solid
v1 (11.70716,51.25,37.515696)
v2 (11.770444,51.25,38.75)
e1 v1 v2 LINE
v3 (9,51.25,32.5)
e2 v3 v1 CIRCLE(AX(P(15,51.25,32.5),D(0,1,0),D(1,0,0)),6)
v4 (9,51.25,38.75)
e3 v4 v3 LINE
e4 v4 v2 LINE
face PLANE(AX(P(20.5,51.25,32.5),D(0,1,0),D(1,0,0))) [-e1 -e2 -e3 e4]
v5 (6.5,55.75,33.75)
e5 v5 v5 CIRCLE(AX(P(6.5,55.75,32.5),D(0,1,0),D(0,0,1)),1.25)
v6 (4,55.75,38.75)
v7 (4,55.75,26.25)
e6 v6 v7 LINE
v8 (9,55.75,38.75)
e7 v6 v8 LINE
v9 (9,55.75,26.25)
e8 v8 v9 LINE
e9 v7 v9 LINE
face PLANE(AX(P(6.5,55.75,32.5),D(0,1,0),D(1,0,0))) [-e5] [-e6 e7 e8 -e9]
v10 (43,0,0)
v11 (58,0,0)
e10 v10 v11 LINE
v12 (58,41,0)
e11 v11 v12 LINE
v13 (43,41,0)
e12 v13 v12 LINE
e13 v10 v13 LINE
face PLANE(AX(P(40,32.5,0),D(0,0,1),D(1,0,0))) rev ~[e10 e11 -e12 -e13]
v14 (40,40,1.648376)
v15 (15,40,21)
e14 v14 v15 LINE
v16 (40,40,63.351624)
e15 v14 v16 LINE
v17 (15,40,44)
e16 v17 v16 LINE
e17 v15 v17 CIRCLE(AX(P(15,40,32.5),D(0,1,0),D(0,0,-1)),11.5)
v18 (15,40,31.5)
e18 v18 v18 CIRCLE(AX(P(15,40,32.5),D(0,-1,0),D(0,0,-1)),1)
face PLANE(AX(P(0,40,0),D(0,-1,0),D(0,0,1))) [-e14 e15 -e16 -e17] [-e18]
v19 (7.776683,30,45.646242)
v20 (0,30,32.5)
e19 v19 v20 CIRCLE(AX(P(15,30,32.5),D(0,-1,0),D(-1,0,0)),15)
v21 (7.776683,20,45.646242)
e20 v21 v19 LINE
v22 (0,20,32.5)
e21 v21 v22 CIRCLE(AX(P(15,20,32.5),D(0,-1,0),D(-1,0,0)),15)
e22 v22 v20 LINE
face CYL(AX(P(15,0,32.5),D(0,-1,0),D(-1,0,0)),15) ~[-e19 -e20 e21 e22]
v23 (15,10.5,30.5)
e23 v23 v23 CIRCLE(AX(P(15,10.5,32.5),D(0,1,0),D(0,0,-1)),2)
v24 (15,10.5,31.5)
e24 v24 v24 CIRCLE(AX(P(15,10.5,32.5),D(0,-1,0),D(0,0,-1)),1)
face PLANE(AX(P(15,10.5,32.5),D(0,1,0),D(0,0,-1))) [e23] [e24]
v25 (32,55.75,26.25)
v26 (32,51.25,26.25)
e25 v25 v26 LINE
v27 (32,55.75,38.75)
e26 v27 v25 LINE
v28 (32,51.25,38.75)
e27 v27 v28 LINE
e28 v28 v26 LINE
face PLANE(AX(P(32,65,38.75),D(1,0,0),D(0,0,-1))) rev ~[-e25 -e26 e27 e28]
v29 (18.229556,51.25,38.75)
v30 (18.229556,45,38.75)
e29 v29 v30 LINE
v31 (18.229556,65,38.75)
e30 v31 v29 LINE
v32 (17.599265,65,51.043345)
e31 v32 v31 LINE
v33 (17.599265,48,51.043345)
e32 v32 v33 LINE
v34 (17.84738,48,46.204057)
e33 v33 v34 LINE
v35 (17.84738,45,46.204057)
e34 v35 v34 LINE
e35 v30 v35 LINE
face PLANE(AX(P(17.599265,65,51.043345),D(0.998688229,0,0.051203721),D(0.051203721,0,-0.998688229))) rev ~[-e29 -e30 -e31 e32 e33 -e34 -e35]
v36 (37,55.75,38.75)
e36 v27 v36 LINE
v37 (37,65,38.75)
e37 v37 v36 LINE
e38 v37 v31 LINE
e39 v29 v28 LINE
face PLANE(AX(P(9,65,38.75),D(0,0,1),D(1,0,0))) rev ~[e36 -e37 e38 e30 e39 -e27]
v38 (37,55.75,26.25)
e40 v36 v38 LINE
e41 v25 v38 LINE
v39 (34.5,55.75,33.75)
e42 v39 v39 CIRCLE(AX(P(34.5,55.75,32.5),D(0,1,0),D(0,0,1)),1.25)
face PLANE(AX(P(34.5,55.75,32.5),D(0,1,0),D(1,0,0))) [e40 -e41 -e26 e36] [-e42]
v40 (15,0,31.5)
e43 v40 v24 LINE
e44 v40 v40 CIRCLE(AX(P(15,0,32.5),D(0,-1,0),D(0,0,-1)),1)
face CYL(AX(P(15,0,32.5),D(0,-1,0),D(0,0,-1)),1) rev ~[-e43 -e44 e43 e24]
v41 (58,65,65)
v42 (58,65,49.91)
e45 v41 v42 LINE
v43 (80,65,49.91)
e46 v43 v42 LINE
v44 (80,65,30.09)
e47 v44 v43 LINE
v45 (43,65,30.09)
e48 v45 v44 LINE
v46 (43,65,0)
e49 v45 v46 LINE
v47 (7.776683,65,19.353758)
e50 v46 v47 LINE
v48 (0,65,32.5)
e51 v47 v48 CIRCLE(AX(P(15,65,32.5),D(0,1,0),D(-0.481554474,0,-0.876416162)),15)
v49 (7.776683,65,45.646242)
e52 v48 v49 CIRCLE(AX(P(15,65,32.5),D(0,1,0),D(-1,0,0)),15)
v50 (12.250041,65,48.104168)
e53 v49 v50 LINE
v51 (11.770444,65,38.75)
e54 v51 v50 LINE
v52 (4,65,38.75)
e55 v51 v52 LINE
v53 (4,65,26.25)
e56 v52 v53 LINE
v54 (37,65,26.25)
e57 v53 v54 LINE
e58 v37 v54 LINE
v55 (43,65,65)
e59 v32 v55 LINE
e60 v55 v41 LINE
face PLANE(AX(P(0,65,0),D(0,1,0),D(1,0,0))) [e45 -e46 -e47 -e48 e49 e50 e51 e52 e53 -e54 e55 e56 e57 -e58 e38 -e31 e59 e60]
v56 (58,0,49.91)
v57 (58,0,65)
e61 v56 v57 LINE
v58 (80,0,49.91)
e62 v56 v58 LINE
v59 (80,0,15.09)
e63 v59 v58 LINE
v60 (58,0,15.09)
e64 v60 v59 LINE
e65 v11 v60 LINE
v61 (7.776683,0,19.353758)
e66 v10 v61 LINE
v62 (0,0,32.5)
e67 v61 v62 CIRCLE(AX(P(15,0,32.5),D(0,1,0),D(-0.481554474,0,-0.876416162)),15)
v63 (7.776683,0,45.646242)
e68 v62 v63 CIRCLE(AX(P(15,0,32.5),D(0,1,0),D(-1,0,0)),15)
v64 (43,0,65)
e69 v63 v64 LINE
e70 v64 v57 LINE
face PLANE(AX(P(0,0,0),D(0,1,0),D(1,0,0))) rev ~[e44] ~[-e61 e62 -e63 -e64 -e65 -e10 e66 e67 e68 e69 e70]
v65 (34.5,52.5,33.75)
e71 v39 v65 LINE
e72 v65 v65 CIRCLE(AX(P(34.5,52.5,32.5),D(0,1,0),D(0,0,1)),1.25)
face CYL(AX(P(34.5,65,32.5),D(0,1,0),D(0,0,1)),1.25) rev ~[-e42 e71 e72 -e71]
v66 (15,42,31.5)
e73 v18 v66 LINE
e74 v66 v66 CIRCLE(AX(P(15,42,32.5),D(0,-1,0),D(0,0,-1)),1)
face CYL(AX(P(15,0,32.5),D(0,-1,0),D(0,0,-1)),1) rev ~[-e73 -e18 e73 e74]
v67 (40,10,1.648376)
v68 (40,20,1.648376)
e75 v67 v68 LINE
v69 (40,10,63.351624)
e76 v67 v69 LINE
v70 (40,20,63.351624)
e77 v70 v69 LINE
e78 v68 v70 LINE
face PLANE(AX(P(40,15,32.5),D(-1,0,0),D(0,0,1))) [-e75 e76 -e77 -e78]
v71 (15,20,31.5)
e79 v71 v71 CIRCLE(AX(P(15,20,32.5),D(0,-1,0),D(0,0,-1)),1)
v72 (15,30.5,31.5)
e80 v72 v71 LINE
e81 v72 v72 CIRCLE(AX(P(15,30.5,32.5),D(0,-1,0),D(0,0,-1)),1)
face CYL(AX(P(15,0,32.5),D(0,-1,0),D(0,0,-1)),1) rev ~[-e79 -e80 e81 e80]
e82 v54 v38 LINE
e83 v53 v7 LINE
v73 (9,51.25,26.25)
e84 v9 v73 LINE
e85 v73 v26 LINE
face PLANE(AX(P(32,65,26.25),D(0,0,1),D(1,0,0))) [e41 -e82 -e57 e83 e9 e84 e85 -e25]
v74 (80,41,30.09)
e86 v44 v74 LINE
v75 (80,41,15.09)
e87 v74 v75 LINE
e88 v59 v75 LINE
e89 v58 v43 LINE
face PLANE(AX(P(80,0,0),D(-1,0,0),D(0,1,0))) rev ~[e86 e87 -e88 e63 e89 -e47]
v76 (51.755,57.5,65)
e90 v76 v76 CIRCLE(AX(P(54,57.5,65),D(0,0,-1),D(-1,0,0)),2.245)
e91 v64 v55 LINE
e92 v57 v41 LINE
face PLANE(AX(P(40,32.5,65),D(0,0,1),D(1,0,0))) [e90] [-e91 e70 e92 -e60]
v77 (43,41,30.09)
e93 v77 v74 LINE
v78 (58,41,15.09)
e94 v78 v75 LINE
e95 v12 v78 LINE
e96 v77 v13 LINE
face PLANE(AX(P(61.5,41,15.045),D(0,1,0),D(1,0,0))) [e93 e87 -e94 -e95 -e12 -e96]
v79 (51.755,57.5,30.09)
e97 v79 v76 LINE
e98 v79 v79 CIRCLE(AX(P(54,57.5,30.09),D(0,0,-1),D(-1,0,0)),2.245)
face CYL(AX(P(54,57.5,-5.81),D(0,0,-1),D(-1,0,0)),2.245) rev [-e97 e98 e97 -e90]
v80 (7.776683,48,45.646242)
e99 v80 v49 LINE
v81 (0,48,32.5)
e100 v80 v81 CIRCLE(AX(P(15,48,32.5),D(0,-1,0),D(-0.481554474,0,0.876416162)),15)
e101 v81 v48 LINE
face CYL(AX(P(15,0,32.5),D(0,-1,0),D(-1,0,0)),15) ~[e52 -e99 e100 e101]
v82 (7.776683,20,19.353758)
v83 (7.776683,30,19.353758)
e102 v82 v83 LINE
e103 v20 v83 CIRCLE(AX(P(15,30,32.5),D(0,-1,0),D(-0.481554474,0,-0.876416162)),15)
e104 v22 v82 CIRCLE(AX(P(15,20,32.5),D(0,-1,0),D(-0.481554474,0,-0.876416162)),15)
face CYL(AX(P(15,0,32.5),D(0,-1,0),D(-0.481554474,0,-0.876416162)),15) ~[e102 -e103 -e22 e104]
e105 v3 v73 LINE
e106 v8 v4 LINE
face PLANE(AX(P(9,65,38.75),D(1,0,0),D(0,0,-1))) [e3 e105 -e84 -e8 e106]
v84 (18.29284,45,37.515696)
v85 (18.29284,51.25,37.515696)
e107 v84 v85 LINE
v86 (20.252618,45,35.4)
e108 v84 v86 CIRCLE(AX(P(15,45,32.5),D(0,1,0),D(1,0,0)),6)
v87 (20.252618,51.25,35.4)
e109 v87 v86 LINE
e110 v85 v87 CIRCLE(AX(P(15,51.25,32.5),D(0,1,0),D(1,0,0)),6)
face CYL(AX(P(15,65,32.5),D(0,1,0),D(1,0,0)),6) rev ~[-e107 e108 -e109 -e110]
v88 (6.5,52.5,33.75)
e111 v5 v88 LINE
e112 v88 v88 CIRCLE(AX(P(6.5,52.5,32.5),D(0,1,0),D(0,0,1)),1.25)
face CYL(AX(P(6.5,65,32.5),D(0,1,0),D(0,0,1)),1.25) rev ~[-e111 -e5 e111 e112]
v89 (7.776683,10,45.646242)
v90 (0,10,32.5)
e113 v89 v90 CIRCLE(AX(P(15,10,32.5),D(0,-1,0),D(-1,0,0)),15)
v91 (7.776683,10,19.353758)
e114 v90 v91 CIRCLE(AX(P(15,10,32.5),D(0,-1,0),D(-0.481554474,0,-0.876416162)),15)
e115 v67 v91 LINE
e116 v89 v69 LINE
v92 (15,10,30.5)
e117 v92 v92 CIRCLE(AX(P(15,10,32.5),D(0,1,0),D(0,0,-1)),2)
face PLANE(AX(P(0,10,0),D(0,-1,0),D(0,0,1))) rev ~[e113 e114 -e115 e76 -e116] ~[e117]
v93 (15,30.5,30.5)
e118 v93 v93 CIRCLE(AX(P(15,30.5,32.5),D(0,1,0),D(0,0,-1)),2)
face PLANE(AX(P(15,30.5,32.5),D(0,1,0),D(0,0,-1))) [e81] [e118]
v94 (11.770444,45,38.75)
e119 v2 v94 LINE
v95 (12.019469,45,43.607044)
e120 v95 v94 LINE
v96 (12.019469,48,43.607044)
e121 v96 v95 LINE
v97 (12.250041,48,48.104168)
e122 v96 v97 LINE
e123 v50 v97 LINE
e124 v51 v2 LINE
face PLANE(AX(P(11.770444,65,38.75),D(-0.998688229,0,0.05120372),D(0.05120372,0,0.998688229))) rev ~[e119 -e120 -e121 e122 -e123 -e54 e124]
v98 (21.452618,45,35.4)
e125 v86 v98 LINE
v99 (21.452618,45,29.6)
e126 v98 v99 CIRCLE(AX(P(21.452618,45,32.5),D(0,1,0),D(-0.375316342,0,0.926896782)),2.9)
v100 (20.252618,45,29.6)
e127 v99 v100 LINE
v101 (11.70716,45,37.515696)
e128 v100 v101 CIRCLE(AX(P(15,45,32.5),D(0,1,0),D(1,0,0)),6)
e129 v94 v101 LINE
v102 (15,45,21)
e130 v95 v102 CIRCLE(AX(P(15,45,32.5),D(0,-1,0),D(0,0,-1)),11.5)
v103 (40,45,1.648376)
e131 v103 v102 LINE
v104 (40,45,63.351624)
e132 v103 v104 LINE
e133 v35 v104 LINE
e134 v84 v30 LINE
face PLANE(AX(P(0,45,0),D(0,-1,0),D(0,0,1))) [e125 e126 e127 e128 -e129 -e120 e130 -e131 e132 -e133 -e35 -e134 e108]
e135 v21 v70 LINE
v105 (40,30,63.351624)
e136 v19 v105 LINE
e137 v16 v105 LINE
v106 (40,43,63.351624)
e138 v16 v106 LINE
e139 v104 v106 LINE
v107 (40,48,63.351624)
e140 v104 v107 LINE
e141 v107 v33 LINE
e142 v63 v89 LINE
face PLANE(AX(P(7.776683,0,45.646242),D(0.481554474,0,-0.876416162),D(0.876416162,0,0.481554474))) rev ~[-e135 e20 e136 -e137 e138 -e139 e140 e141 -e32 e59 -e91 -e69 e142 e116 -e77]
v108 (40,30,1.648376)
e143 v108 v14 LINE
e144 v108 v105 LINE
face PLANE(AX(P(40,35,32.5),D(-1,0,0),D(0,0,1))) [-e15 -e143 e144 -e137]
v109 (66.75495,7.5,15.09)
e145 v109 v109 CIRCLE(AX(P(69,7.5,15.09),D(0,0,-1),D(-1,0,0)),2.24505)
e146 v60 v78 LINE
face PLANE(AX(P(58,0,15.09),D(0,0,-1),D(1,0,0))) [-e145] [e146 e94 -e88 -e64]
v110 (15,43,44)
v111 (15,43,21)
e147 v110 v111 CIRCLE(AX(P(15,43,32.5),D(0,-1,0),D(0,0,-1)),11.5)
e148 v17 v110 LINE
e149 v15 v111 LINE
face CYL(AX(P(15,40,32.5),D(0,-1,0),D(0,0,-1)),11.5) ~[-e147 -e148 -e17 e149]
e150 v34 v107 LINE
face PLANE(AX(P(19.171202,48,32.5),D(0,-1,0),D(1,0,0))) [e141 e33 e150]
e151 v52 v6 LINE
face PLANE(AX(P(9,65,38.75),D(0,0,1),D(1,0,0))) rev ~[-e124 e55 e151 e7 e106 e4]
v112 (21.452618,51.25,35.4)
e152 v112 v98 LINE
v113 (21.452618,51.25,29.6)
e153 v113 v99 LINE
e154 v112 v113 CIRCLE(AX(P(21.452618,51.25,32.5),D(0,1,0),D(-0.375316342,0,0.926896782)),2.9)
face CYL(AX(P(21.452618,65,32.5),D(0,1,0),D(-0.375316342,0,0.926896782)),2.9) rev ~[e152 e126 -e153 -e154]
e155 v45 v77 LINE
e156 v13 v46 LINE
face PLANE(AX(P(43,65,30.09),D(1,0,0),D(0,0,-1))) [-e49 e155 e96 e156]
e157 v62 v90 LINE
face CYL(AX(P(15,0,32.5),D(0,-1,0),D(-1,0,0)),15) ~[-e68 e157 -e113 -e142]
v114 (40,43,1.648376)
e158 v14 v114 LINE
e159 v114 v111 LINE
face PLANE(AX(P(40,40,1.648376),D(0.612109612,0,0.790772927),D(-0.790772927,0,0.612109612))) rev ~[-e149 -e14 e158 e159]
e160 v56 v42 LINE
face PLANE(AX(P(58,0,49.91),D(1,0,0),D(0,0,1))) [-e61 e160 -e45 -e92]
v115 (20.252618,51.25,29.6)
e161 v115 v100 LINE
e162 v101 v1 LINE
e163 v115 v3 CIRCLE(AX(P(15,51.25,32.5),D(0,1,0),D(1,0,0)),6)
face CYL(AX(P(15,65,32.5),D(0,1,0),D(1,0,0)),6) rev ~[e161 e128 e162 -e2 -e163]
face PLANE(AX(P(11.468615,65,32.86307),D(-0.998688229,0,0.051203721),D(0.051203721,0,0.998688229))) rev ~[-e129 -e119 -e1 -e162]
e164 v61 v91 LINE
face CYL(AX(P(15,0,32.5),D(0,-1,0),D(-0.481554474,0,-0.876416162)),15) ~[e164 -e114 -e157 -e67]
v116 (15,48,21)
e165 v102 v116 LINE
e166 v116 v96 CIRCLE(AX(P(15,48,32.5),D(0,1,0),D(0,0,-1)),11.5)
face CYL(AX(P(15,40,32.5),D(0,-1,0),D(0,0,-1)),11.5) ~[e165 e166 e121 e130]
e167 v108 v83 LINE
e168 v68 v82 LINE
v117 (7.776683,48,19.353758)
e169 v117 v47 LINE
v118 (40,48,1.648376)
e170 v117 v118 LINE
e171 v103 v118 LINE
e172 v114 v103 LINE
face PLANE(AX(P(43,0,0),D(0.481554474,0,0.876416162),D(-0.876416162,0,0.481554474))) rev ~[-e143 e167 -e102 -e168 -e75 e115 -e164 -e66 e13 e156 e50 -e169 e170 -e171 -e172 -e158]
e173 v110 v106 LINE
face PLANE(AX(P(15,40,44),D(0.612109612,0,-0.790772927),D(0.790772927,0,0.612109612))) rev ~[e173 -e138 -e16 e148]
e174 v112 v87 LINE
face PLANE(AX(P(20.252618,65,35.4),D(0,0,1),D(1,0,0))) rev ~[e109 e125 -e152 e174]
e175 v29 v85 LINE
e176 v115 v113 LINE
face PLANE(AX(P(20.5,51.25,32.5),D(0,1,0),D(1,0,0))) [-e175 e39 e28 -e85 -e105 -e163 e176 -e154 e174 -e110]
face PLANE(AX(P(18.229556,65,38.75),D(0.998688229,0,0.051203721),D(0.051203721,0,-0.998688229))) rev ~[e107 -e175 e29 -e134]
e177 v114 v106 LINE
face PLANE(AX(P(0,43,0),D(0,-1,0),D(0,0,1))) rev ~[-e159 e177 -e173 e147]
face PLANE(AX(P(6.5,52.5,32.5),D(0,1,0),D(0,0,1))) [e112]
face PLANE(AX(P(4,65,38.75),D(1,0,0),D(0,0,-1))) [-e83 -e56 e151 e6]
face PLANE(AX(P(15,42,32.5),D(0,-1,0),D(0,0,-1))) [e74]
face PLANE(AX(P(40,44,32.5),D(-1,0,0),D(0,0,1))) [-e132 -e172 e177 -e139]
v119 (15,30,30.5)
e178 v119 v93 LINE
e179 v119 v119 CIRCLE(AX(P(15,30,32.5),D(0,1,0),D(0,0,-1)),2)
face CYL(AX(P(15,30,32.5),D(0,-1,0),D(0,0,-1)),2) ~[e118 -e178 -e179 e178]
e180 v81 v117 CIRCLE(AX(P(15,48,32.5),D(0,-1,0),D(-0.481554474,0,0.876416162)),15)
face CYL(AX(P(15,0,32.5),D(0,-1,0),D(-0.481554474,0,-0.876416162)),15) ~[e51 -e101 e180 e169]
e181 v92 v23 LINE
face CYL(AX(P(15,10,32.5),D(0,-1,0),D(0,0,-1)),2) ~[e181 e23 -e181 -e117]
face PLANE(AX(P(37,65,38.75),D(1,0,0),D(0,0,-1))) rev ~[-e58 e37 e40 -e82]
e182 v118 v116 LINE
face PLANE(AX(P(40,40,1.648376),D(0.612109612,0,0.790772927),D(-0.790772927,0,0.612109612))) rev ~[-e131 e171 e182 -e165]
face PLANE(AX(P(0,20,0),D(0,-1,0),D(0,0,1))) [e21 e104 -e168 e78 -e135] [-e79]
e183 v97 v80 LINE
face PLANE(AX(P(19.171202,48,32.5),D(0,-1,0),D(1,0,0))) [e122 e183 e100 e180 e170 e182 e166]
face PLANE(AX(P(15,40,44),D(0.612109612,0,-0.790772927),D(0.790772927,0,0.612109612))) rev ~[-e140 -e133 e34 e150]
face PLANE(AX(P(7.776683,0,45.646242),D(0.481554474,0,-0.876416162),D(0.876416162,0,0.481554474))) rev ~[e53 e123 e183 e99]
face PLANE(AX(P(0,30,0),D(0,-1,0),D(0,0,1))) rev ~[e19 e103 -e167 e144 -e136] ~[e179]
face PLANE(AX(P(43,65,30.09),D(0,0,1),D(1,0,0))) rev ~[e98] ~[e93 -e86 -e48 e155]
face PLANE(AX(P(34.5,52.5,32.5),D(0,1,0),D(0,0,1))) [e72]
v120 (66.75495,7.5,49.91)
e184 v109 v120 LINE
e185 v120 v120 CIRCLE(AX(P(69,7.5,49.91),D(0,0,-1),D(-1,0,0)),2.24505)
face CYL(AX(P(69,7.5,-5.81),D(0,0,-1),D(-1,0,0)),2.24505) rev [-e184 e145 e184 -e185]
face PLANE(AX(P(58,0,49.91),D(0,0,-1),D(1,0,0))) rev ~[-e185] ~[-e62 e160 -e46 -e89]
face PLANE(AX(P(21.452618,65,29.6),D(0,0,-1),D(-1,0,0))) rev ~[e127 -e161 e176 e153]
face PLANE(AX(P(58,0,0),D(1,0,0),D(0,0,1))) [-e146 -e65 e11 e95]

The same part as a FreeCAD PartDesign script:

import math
import FreeCAD as App
import Part
import Sketcher

V = App.Vector

doc = App.newDocument("Part")
params = doc.addObject("Spreadsheet::Sheet", "Params")
for row, (alias, value) in enumerate([
    ("sketch1_width", "80 mm"),
    ("sketch1_height", "65 mm"),
    ("pad1_length", "65 mm"),
    ("sketch2_width", "22 mm"),
    ("sketch2_height", "15.09 mm"),
    ("pocket1_length", "65.72 mm"),
    ("sketch3_diameter", "4.49 mm"),
    ("sketch4_width", "10 mm"),
    ("sketch4_width2", "2 mm"),
    ("sketch4_height", "65 mm"),
    ("pocket3_length", "40 mm"),
    ("sketch5_radius", "15 mm"),
    ("sketch5_width", "43 mm"),
    ("sketch5_height", "32.5 mm"),
    ("pocket4_length", "65 mm"),
    ("sketch6_diameter", "2 mm"),
    ("pocket5_length", "42 mm"),
    ("sketch7_radius", "6 mm"),
    ("sketch7_radius2", "2.9 mm"),
    ("sketch7_width", "1.2 mm"),
    ("pocket6_length", "20 mm"),
    ("sketch8_width", "23 mm"),
    ("sketch8_height", "12.5 mm"),
    ("pocket7_length", "13.75 mm"),
    ("sketch9_width", "5 mm"),
    ("sketch9_height", "12.5 mm"),
    ("pocket8_length", "9.25 mm"),
    ("sketch10_diameter", "2.5 mm"),
    ("pocket9_length", "12.5 mm"),
    ("sketch11_radius", "3.55 mm"),
    ("pocket10_length", "21.5 mm"),
    ("sketch12_radius", "15 mm"),
    ("sketch12_radius2", "11.5 mm"),
    ("pocket11_length", "8 mm"),
    ("sketch13_diameter", "4 mm"),
    ("pad2_length", "0.5 mm"),
    ("sketch14_diameter", "4 mm"),
    ("pad3_length", "0.5 mm"),
    ("sketch15_diameter", "2 mm"),
    ("pocket12_length", "30.5 mm"),
    ("sketch16_width", "37 mm"),
    ("sketch16_height", "30.09 mm"),
    ("pocket13_length", "24 mm"),
], start=1):
    params.set(f"A{row}", alias)
    params.set(f"B{row}", "=" + value)
    params.setAlias(f"B{row}", alias)

body = doc.addObject("PartDesign::Body", "Body")

sketch1 = body.newObject("Sketcher::SketchObject", "Sketch")
sketch1.AttachmentSupport = (doc.getObject("XY_Plane"), [""])
sketch1.MapMode = "FlatFace"
sketch1.addGeometry([
    Part.LineSegment(V(0, 65, 0), V(0, 0, 0)),
    Part.LineSegment(V(0, 0, 0), V(80, 0, 0)),
    Part.LineSegment(V(80, 0, 0), V(80, 65, 0)),
    Part.LineSegment(V(80, 65, 0), V(0, 65, 0)),
], False)
sketch1.addConstraint([
    Sketcher.Constraint("Coincident", 0, 2, 1, 1),
    Sketcher.Constraint("Coincident", 1, 2, 2, 1),
    Sketcher.Constraint("Coincident", 2, 2, 3, 1),
    Sketcher.Constraint("Coincident", 3, 2, 0, 1),
    Sketcher.Constraint("Vertical", 0),
    Sketcher.Constraint("Horizontal", 1),
    Sketcher.Constraint("Vertical", 2),
    Sketcher.Constraint("Horizontal", 3),
    Sketcher.Constraint("Coincident", 0, 2, -1, 1),
    Sketcher.Constraint("DistanceX", 1, 1, 1, 2, 80.0),
    Sketcher.Constraint("DistanceY", 0, 2, 0, 1, 65.0),
])
sketch1.setExpression("Constraints[9]", "Params.sketch1_width")
sketch1.setExpression("Constraints[10]", "Params.sketch1_height")
pad1 = body.newObject("PartDesign::Pad", "Pad")
pad1.Profile = sketch1
pad1.setExpression("Length", "Params.pad1_length")

sketch2 = body.newObject("Sketcher::SketchObject", "Sketch001")
sketch2.AttachmentSupport = (doc.getObject("XZ_Plane"), [""])
sketch2.MapMode = "FlatFace"
sketch2.addGeometry([
    Part.LineSegment(V(58, 65, 0), V(58, 50, 0)),
    Part.LineSegment(V(58, 50, 0), V(80, 50, 0)),
    Part.LineSegment(V(80, 50, 0), V(80, 65, 0)),
    Part.LineSegment(V(80, 65, 0), V(58, 65, 0)),
    Part.LineSegment(V(58, 15, 0), V(58, 0, 0)),
    Part.LineSegment(V(58, 0, 0), V(80, 0, 0)),
    Part.LineSegment(V(80, 0, 0), V(80, 15, 0)),
    Part.LineSegment(V(80, 15, 0), V(58, 15, 0)),
], False)
sketch2.addConstraint([
    Sketcher.Constraint("Coincident", 0, 2, 1, 1),
    Sketcher.Constraint("Coincident", 1, 2, 2, 1),
    Sketcher.Constraint("Coincident", 2, 2, 3, 1),
    Sketcher.Constraint("Coincident", 3, 2, 0, 1),
    Sketcher.Constraint("Coincident", 4, 2, 5, 1),
    Sketcher.Constraint("Coincident", 5, 2, 6, 1),
    Sketcher.Constraint("Coincident", 6, 2, 7, 1),
    Sketcher.Constraint("Coincident", 7, 2, 4, 1),
    Sketcher.Constraint("Vertical", 0),
    Sketcher.Constraint("Horizontal", 1),
    Sketcher.Constraint("Vertical", 2),
    Sketcher.Constraint("Horizontal", 3),
    Sketcher.Constraint("Vertical", 4),
    Sketcher.Constraint("Horizontal", 5),
    Sketcher.Constraint("Vertical", 6),
    Sketcher.Constraint("Horizontal", 7),
    Sketcher.Constraint("PointOnObject", 4, 2, -1),
    Sketcher.Constraint("Vertical", 3, 2, 4, 2),
    Sketcher.Constraint("Vertical", 2, 2, 5, 2),
    Sketcher.Constraint("Equal", 2, 4),
    Sketcher.Constraint("DistanceX", 1, 1, 1, 2, 22.0),
    Sketcher.Constraint("DistanceX", -1, 1, 0, 2, 58.0),
    Sketcher.Constraint("DistanceY", -1, 1, 2, 2, 65.0),
    Sketcher.Constraint("DistanceY", 0, 2, 0, 1, 15.09),
])
sketch2.setExpression("Constraints[20]", "Params.sketch2_width")
sketch2.setExpression("Constraints[23]", "Params.sketch2_height")
pocket1 = body.newObject("PartDesign::Pocket", "Pocket")
pocket1.Profile = sketch2
pocket1.setExpression("Length", "Params.pocket1_length")

sketch3 = body.newObject("Sketcher::SketchObject", "Sketch002")
sketch3.AttachmentSupport = (doc.getObject("XY_Plane"), [""])
sketch3.MapMode = "FlatFace"
sketch3.AttachmentOffset = App.Placement(V(0, 0, 49.91), App.Rotation())
sketch3.addGeometry([
    Part.Circle(V(54, 57.5, 0), V(0, 0, 1), 2.2),
    Part.Circle(V(69, 7.5, 0), V(0, 0, 1), 2.2),
], False)
sketch3.addConstraint([
    Sketcher.Constraint("Diameter", 0, 4.49),
    Sketcher.Constraint("DistanceX", -1, 1, 0, 3, 54.0),
    Sketcher.Constraint("DistanceX", -1, 1, 1, 3, 69.0),
    Sketcher.Constraint("DistanceY", 1, 3, 0, 3, 50.0),
    Sketcher.Constraint("Diameter", 1, 4.4901),
    Sketcher.Constraint("DistanceY", -1, 1, 0, 3, 57.5),
])
sketch3.setExpression("Constraints[0]", "Params.sketch3_diameter")
pocket2 = body.newObject("PartDesign::Pocket", "Pocket001")
pocket2.Profile = sketch3
pocket2.Type = "ThroughAll"
pocket2.Midplane = True

sketch4 = body.newObject("Sketcher::SketchObject", "Sketch003")
sketch4.AttachmentSupport = (doc.getObject("YZ_Plane"), [""])
sketch4.MapMode = "FlatFace"
sketch4.addGeometry([
    Part.LineSegment(V(40, 0, 0), V(30, 0, 0)),
    Part.LineSegment(V(30, 0, 0), V(30, 65, 0)),
    Part.LineSegment(V(30, 65, 0), V(40, 65, 0)),
    Part.LineSegment(V(40, 65, 0), V(40, 0, 0)),
    Part.LineSegment(V(20, 0, 0), V(10, 0, 0)),
    Part.LineSegment(V(10, 0, 0), V(10, 65, 0)),
    Part.LineSegment(V(10, 65, 0), V(20, 65, 0)),
    Part.LineSegment(V(20, 65, 0), V(20, 0, 0)),
    Part.LineSegment(V(45, 0, 0), V(43, 0, 0)),
    Part.LineSegment(V(43, 0, 0), V(43, 65, 0)),
    Part.LineSegment(V(43, 65, 0), V(45, 65, 0)),
    Part.LineSegment(V(45, 65, 0), V(45, 0, 0)),
], False)
sketch4.addConstraint([
    Sketcher.Constraint("Coincident", 0, 2, 1, 1),
    Sketcher.Constraint("Coincident", 1, 2, 2, 1),
    Sketcher.Constraint("Coincident", 2, 2, 3, 1),
    Sketcher.Constraint("Coincident", 3, 2, 0, 1),
    Sketcher.Constraint("Coincident", 4, 2, 5, 1),
    Sketcher.Constraint("Coincident", 5, 2, 6, 1),
    Sketcher.Constraint("Coincident", 6, 2, 7, 1),
    Sketcher.Constraint("Coincident", 7, 2, 4, 1),
    Sketcher.Constraint("Coincident", 8, 2, 9, 1),
    Sketcher.Constraint("Coincident", 9, 2, 10, 1),
    Sketcher.Constraint("Coincident", 10, 2, 11, 1),
    Sketcher.Constraint("Coincident", 11, 2, 8, 1),
    Sketcher.Constraint("Horizontal", 0),
    Sketcher.Constraint("Vertical", 1),
    Sketcher.Constraint("Horizontal", 2),
    Sketcher.Constraint("Vertical", 3),
    Sketcher.Constraint("Horizontal", 4),
    Sketcher.Constraint("Vertical", 5),
    Sketcher.Constraint("Horizontal", 6),
    Sketcher.Constraint("Vertical", 7),
    Sketcher.Constraint("Horizontal", 8),
    Sketcher.Constraint("Vertical", 9),
    Sketcher.Constraint("Horizontal", 10),
    Sketcher.Constraint("Vertical", 11),
    Sketcher.Constraint("PointOnObject", 0, 2, -1),
    Sketcher.Constraint("PointOnObject", 4, 2, -1),
    Sketcher.Constraint("PointOnObject", 8, 2, -1),
    Sketcher.Constraint("Horizontal", 2, 2, 5, 2),
    Sketcher.Constraint("Horizontal", 6, 2, 9, 2),
    Sketcher.Constraint("Equal", 2, 4),
    Sketcher.Constraint("DistanceX", 0, 2, 0, 1, 10.0),
    Sketcher.Constraint("DistanceX", 8, 2, 8, 1, 2.0),
    Sketcher.Constraint("DistanceY", 1, 1, 1, 2, 65.0),
    Sketcher.Constraint("DistanceX", -1, 1, 0, 2, 30.0),
    Sketcher.Constraint("DistanceX", -1, 1, 4, 2, 10.0),
    Sketcher.Constraint("DistanceX", -1, 1, 8, 2, 43.0),
])
sketch4.setExpression("Constraints[30]", "Params.sketch4_width")
sketch4.setExpression("Constraints[31]", "Params.sketch4_width2")
sketch4.setExpression("Constraints[32]", "Params.sketch4_height")
pocket3 = body.newObject("PartDesign::Pocket", "Pocket002")
pocket3.Profile = sketch4
pocket3.setExpression("Length", "Params.pocket3_length")
pocket3.Reversed = True

sketch5 = body.newObject("Sketcher::SketchObject", "Sketch004")
sketch5.AttachmentSupport = (doc.getObject("XZ_Plane"), [""])
sketch5.MapMode = "FlatFace"
sketch5.addGeometry([
    Part.LineSegment(V(0, 0, 0), V(43, 0, 0)),
    Part.LineSegment(V(43, 0, 0), V(8, 19, 0)),
    Part.ArcOfCircle(Part.Circle(V(15, 32, 0), V(0, 0, 1), 15), math.radians(180), math.radians(241)),
    Part.LineSegment(V(0, 32, 0), V(0, 0, 0)),
    Part.LineSegment(V(0, 65, 0), V(0, 32, 0)),
    Part.ArcOfCircle(Part.Circle(V(15, 32, 0), V(0, 0, 1), 15), math.radians(119), math.radians(180)),
    Part.LineSegment(V(8, 46, 0), V(43, 65, 0)),
    Part.LineSegment(V(43, 65, 0), V(0, 65, 0)),
], False)
sketch5.addConstraint([
    Sketcher.Constraint("Coincident", 0, 2, 1, 1),
    Sketcher.Constraint("Tangent", 1, 2, 2, 2),
    Sketcher.Constraint("Tangent", 2, 1, 3, 1),
    Sketcher.Constraint("Coincident", 3, 2, 0, 1),
    Sketcher.Constraint("Tangent", 4, 2, 5, 2),
    Sketcher.Constraint("Tangent", 5, 1, 6, 1),
    Sketcher.Constraint("Coincident", 6, 2, 7, 1),
    Sketcher.Constraint("Coincident", 7, 2, 4, 1),
    Sketcher.Constraint("Horizontal", 0),
    Sketcher.Constraint("Vertical", 3),
    Sketcher.Constraint("Vertical", 4),
    Sketcher.Constraint("Horizontal", 7),
    Sketcher.Constraint("Coincident", 3, 2, -1, 1),
    Sketcher.Constraint("Coincident", 5, 3, 2, 3),
    Sketcher.Constraint("Equal", 2, 5),
    Sketcher.Constraint("Vertical", 1, 2, 5, 1),
    Sketcher.Constraint("Vertical", 0, 2, 6, 2),
    Sketcher.Constraint("Radius", 2, 15.0),
    Sketcher.Constraint("DistanceX", 0, 1, 0, 2, 43.0),
    Sketcher.Constraint("DistanceY", 3, 2, 3, 1, 32.5),
])
sketch5.setExpression("Constraints[17]", "Params.sketch5_radius")
sketch5.setExpression("Constraints[18]", "Params.sketch5_width")
sketch5.setExpression("Constraints[19]", "Params.sketch5_height")
pocket4 = body.newObject("PartDesign::Pocket", "Pocket003")
pocket4.Profile = sketch5
pocket4.setExpression("Length", "Params.pocket4_length")

sketch6 = body.newObject("Sketcher::SketchObject", "Sketch005")
sketch6.AttachmentSupport = (doc.getObject("XZ_Plane"), [""])
sketch6.MapMode = "FlatFace"
sketch6.addGeometry(Part.Circle(V(15, 32.5, 0), V(0, 0, 1), 1), False)
sketch6.addConstraint([
    Sketcher.Constraint("Diameter", 0, 2.0),
    Sketcher.Constraint("DistanceX", -1, 1, 0, 3, 15.0),
    Sketcher.Constraint("DistanceY", -1, 1, 0, 3, 32.5),
])
sketch6.setExpression("Constraints[0]", "Params.sketch6_diameter")
pocket5 = body.newObject("PartDesign::Pocket", "Pocket004")
pocket5.Profile = sketch6
pocket5.setExpression("Length", "Params.pocket5_length")

sketch7 = body.newObject("Sketcher::SketchObject", "Sketch006")
sketch7.AttachmentSupport = (doc.getObject("XZ_Plane"), [""])
sketch7.MapMode = "FlatFace"
sketch7.AttachmentOffset = App.Placement(V(0, 0, -65), App.Rotation())
sketch7.addGeometry([
    Part.ArcOfCircle(Part.Circle(V(15, 32.5, 0), V(0, 0, 1), 6), math.radians(29), math.radians(331)),
    Part.LineSegment(V(20.3, 35.4, 0), V(21.5, 35.4, 0)),
    Part.ArcOfCircle(Part.Circle(V(21.5, 32.5, 0), V(0, 0, 1), 2.9), math.radians(-90), math.radians(90)),
    Part.LineSegment(V(21.5, 29.6, 0), V(20.3, 29.6, 0)),
], False)
sketch7.addConstraint([
    Sketcher.Constraint("Coincident", 0, 1, 1, 1),
    Sketcher.Constraint("Tangent", 1, 2, 2, 2),
    Sketcher.Constraint("Tangent", 2, 1, 3, 1),
    Sketcher.Constraint("Coincident", 3, 2, 0, 2),
    Sketcher.Constraint("Horizontal", 1),
    Sketcher.Constraint("Horizontal", 3),
    Sketcher.Constraint("Horizontal", 0, 3, 2, 3),
    Sketcher.Constraint("Radius", 0, 6.0),
    Sketcher.Constraint("Radius", 2, 2.9),
    Sketcher.Constraint("DistanceX", 1, 1, 1, 2, 1.2),
    Sketcher.Constraint("DistanceX", -1, 1, 0, 3, 15.0),
    Sketcher.Constraint("DistanceY", -1, 1, 0, 3, 32.5),
])
sketch7.setExpression("Constraints[7]", "Params.sketch7_radius")
sketch7.setExpression("Constraints[8]", "Params.sketch7_radius2")
sketch7.setExpression("Constraints[9]", "Params.sketch7_width")
pocket6 = body.newObject("PartDesign::Pocket", "Pocket005")
pocket6.Profile = sketch7
pocket6.setExpression("Length", "Params.pocket6_length")
pocket6.Reversed = True

sketch8 = body.newObject("Sketcher::SketchObject", "Sketch007")
sketch8.AttachmentSupport = (doc.getObject("XZ_Plane"), [""])
sketch8.MapMode = "FlatFace"
sketch8.AttachmentOffset = App.Placement(V(0, 0, -65), App.Rotation())
sketch8.addGeometry([
    Part.LineSegment(V(9, 26, 0), V(9, 39, 0)),
    Part.LineSegment(V(9, 39, 0), V(32, 39, 0)),
    Part.LineSegment(V(32, 39, 0), V(32, 26, 0)),
    Part.LineSegment(V(32, 26, 0), V(9, 26, 0)),
], False)
sketch8.addConstraint([
    Sketcher.Constraint("Coincident", 0, 2, 1, 1),
    Sketcher.Constraint("Coincident", 1, 2, 2, 1),
    Sketcher.Constraint("Coincident", 2, 2, 3, 1),
    Sketcher.Constraint("Coincident", 3, 2, 0, 1),
    Sketcher.Constraint("Vertical", 0),
    Sketcher.Constraint("Horizontal", 1),
    Sketcher.Constraint("Vertical", 2),
    Sketcher.Constraint("Horizontal", 3),
    Sketcher.Constraint("DistanceX", 1, 1, 1, 2, 23.0),
    Sketcher.Constraint("DistanceY", 0, 1, 0, 2, 12.5),
    Sketcher.Constraint("DistanceX", -1, 1, 0, 2, 9.0),
    Sketcher.Constraint("DistanceY", -1, 1, 0, 2, 38.75),
])
sketch8.setExpression("Constraints[8]", "Params.sketch8_width")
sketch8.setExpression("Constraints[9]", "Params.sketch8_height")
pocket7 = body.newObject("PartDesign::Pocket", "Pocket006")
pocket7.Profile = sketch8
pocket7.setExpression("Length", "Params.pocket7_length")
pocket7.Reversed = True

sketch9 = body.newObject("Sketcher::SketchObject", "Sketch008")
sketch9.AttachmentSupport = (doc.getObject("XZ_Plane"), [""])
sketch9.MapMode = "FlatFace"
sketch9.AttachmentOffset = App.Placement(V(0, 0, -65), App.Rotation())
sketch9.addGeometry([
    Part.LineSegment(V(4, 26, 0), V(4, 39, 0)),
    Part.LineSegment(V(4, 39, 0), V(9, 39, 0)),
    Part.LineSegment(V(9, 39, 0), V(9, 26, 0)),
    Part.LineSegment(V(9, 26, 0), V(4, 26, 0)),
    Part.LineSegment(V(32, 26, 0), V(32, 39, 0)),
    Part.LineSegment(V(32, 39, 0), V(37, 39, 0)),
    Part.LineSegment(V(37, 39, 0), V(37, 26, 0)),
    Part.LineSegment(V(37, 26, 0), V(32, 26, 0)),
], False)
sketch9.addConstraint([
    Sketcher.Constraint("Coincident", 0, 2, 1, 1),
    Sketcher.Constraint("Coincident", 1, 2, 2, 1),
    Sketcher.Constraint("Coincident", 2, 2, 3, 1),
    Sketcher.Constraint("Coincident", 3, 2, 0, 1),
    Sketcher.Constraint("Coincident", 4, 2, 5, 1),
    Sketcher.Constraint("Coincident", 5, 2, 6, 1),
    Sketcher.Constraint("Coincident", 6, 2, 7, 1),
    Sketcher.Constraint("Coincident", 7, 2, 4, 1),
    Sketcher.Constraint("Vertical", 0),
    Sketcher.Constraint("Horizontal", 1),
    Sketcher.Constraint("Vertical", 2),
    Sketcher.Constraint("Horizontal", 3),
    Sketcher.Constraint("Vertical", 4),
    Sketcher.Constraint("Horizontal", 5),
    Sketcher.Constraint("Vertical", 6),
    Sketcher.Constraint("Horizontal", 7),
    Sketcher.Constraint("Horizontal", 1, 2, 4, 2),
    Sketcher.Constraint("Horizontal", 3, 2, 6, 2),
    Sketcher.Constraint("Equal", 3, 5),
    Sketcher.Constraint("DistanceX", 1, 1, 1, 2, 5.0),
    Sketcher.Constraint("DistanceY", 0, 1, 0, 2, 12.5),
    Sketcher.Constraint("DistanceX", -1, 1, 0, 2, 4.0),
    Sketcher.Constraint("DistanceX", -1, 1, 4, 2, 32.0),
    Sketcher.Constraint("DistanceY", -1, 1, 0, 2, 38.75),
])
sketch9.setExpression("Constraints[19]", "Params.sketch9_width")
sketch9.setExpression("Constraints[20]", "Params.sketch9_height")
pocket8 = body.newObject("PartDesign::Pocket", "Pocket007")
pocket8.Profile = sketch9
pocket8.setExpression("Length", "Params.pocket8_length")
pocket8.Reversed = True

sketch10 = body.newObject("Sketcher::SketchObject", "Sketch009")
sketch10.AttachmentSupport = (doc.getObject("XZ_Plane"), [""])
sketch10.MapMode = "FlatFace"
sketch10.AttachmentOffset = App.Placement(V(0, 0, -65), App.Rotation())
sketch10.addGeometry([
    Part.Circle(V(6.5, 32.5, 0), V(0, 0, 1), 1.2),
    Part.Circle(V(34.5, 32.5, 0), V(0, 0, 1), 1.2),
], False)
sketch10.addConstraint([
    Sketcher.Constraint("Equal", 0, 1),
    Sketcher.Constraint("Horizontal", 0, 3, 1, 3),
    Sketcher.Constraint("Diameter", 0, 2.5),
    Sketcher.Constraint("DistanceX", 0, 3, 1, 3, 28.0),
    Sketcher.Constraint("DistanceX", -1, 1, 0, 3, 6.5),
    Sketcher.Constraint("DistanceY", -1, 1, 0, 3, 32.5),
])
sketch10.setExpression("Constraints[2]", "Params.sketch10_diameter")
pocket9 = body.newObject("PartDesign::Pocket", "Pocket008")
pocket9.Profile = sketch10
pocket9.setExpression("Length", "Params.pocket9_length")
pocket9.Reversed = True

sketch11 = body.newObject("Sketcher::SketchObject", "Sketch010")
sketch11.AttachmentSupport = (doc.getObject("XZ_Plane"), [""])
sketch11.MapMode = "FlatFace"
sketch11.AttachmentOffset = App.Placement(V(0, 0, -65), App.Rotation())
sketch11.addGeometry([
    Part.LineSegment(V(11.47, 32.86, 0), V(11.77, 38.75, 0)),
    Part.LineSegment(V(11.77, 38.75, 0), V(12.25, 48.1, 0)),
    Part.LineSegment(V(12.25, 48.1, 0), V(17.6, 51.04, 0)),
    Part.LineSegment(V(17.6, 51.04, 0), V(18.23, 38.75, 0)),
    Part.LineSegment(V(18.23, 38.75, 0), V(18.53, 32.86, 0)),
    Part.LineSegment(V(18.53, 32.86, 0), V(18.55, 32.5, 0)),
    Part.ArcOfCircle(Part.Circle(V(15, 32.5, 0), V(0, 0, 1), 3.55), math.radians(-80), math.radians(0)),
    Part.ArcOfCircle(Part.Circle(V(15, 32.5, 0), V(0, 0, 1), 3.55), math.radians(-99.63), math.radians(-80.37)),
    Part.ArcOfCircle(Part.Circle(V(15, 32.5, 0), V(0, 0, 1), 3.55), math.radians(180), math.radians(260)),
    Part.LineSegment(V(11.45, 32.5, 0), V(11.47, 32.86, 0)),
], False)
sketch11.addConstraint([
    Sketcher.Constraint("Coincident", 0, 2, 1, 1),
    Sketcher.Constraint("Coincident", 1, 2, 2, 1),
    Sketcher.Constraint("Coincident", 2, 2, 3, 1),
    Sketcher.Constraint("Coincident", 3, 2, 4, 1),
    Sketcher.Constraint("Coincident", 4, 2, 5, 1),
    Sketcher.Constraint("Coincident", 5, 2, 6, 2),
    Sketcher.Constraint("Tangent", 6, 1, 7, 2),
    Sketcher.Constraint("Tangent", 7, 1, 8, 2),
    Sketcher.Constraint("Coincident", 8, 1, 9, 1),
    Sketcher.Constraint("Coincident", 9, 2, 0, 1),
    Sketcher.Constraint("Coincident", 8, 3, 6, 3),
    Sketcher.Constraint("Parallel", 0, 1),
    Sketcher.Constraint("Parallel", 3, 4),
    Sketcher.Constraint("Parallel", 4, 5),
    Sketcher.Constraint("Parallel", 1, 9),
    Sketcher.Constraint("Horizontal", 0, 2, 3, 2),
    Sketcher.Constraint("Horizontal", 8, 3, 5, 2),
    Sketcher.Constraint("Horizontal", 6, 1, 7, 1),
    Sketcher.Constraint("Horizontal", 5, 2, 8, 1),
    Sketcher.Constraint("Horizontal", 4, 2, 9, 2),
    Sketcher.Constraint("Equal", 0, 4),
    Sketcher.Constraint("Radius", 6, 3.55),
    Sketcher.Constraint("DistanceX", -1, 1, 6, 3, 15.0),
    Sketcher.Constraint("DistanceY", -1, 1, 6, 1, 29.0),
    Sketcher.Constraint("DistanceY", -1, 1, 6, 3, 32.5),
    Sketcher.Constraint("DistanceY", -1, 1, 0, 2, 38.75),
    Sketcher.Constraint("Distance", 2, 6.10352),
    Sketcher.Constraint("DistanceX", -1, 1, 1, 2, 12.250041),
    Sketcher.Constraint("DistanceY", -1, 1, 4, 2, 32.86307),
    Sketcher.Constraint("DistanceX", 0, 2, 2, 2, 5.828821),
])
sketch11.setExpression("Constraints[21]", "Params.sketch11_radius")
pocket10 = body.newObject("PartDesign::Pocket", "Pocket009")
pocket10.Profile = sketch11
pocket10.setExpression("Length", "Params.pocket10_length")
pocket10.Reversed = True

sketch12 = body.newObject("Sketcher::SketchObject", "Sketch011")
sketch12.AttachmentSupport = (doc.getObject("XZ_Plane"), [""])
sketch12.MapMode = "FlatFace"
sketch12.AttachmentOffset = App.Placement(V(0, 0, -40), App.Rotation())
sketch12.addGeometry([
    Part.LineSegment(V(15, 44, 0), V(40, 63, 0)),
    Part.LineSegment(V(40, 63, 0), V(8, 46, 0)),
    Part.ArcOfCircle(Part.Circle(V(15, 32, 0), V(0, 0, 1), 15), math.radians(119), math.radians(241)),
    Part.LineSegment(V(8, 19, 0), V(40, 2, 0)),
    Part.LineSegment(V(40, 2, 0), V(15, 21, 0)),
    Part.ArcOfCircle(Part.Circle(V(15, 32, 0), V(0, 0, 1), 12), math.radians(90), math.radians(270)),
], False)
sketch12.addConstraint([
    Sketcher.Constraint("Coincident", 0, 2, 1, 1),
    Sketcher.Constraint("Tangent", 1, 2, 2, 1),
    Sketcher.Constraint("Tangent", 2, 2, 3, 1),
    Sketcher.Constraint("Coincident", 3, 2, 4, 1),
    Sketcher.Constraint("Coincident", 4, 2, 5, 2),
    Sketcher.Constraint("Coincident", 5, 1, 0, 1),
    Sketcher.Constraint("Coincident", 5, 3, 2, 3),
    Sketcher.Constraint("Vertical", 1, 2, 2, 2),
    Sketcher.Constraint("Vertical", 0, 2, 3, 2),
    Sketcher.Constraint("Vertical", 5, 3, 4, 2),
    Sketcher.Constraint("Vertical", 4, 2, 5, 1),
    Sketcher.Constraint("Radius", 2, 15.0),
    Sketcher.Constraint("Radius", 5, 11.5),
    Sketcher.Constraint("DistanceX", -1, 1, 2, 3, 15.0),
    Sketcher.Constraint("DistanceX", -1, 1, 0, 2, 40.0),
    Sketcher.Constraint("DistanceY", -1, 1, 4, 2, 21.0),
    Sketcher.Constraint("Distance", 0, 31.614638),
])
sketch12.setExpression("Constraints[11]", "Params.sketch12_radius")
sketch12.setExpression("Constraints[12]", "Params.sketch12_radius2")
pocket11 = body.newObject("PartDesign::Pocket", "Pocket010")
pocket11.Profile = sketch12
pocket11.setExpression("Length", "Params.pocket11_length")

sketch13 = body.newObject("Sketcher::SketchObject", "Sketch012")
sketch13.AttachmentSupport = (doc.getObject("XZ_Plane"), [""])
sketch13.MapMode = "FlatFace"
sketch13.AttachmentOffset = App.Placement(V(0, 0, -30), App.Rotation())
sketch13.addGeometry(Part.Circle(V(15, 32.5, 0), V(0, 0, 1), 2), False)
sketch13.addConstraint([
    Sketcher.Constraint("Diameter", 0, 4.0),
    Sketcher.Constraint("DistanceX", -1, 1, 0, 3, 15.0),
    Sketcher.Constraint("DistanceY", -1, 1, 0, 3, 32.5),
])
sketch13.setExpression("Constraints[0]", "Params.sketch13_diameter")
pad2 = body.newObject("PartDesign::Pad", "Pad001")
pad2.Profile = sketch13
pad2.setExpression("Length", "Params.pad2_length")
pad2.Reversed = True

sketch14 = body.newObject("Sketcher::SketchObject", "Sketch013")
sketch14.AttachmentSupport = (doc.getObject("XZ_Plane"), [""])
sketch14.MapMode = "FlatFace"
sketch14.AttachmentOffset = App.Placement(V(0, 0, -10), App.Rotation())
sketch14.addGeometry(Part.Circle(V(15, 32.5, 0), V(0, 0, 1), 2), False)
sketch14.addConstraint([
    Sketcher.Constraint("Diameter", 0, 4.0),
    Sketcher.Constraint("DistanceX", -1, 1, 0, 3, 15.0),
    Sketcher.Constraint("DistanceY", -1, 1, 0, 3, 32.5),
])
sketch14.setExpression("Constraints[0]", "Params.sketch14_diameter")
pad3 = body.newObject("PartDesign::Pad", "Pad002")
pad3.Profile = sketch14
pad3.setExpression("Length", "Params.pad3_length")
pad3.Reversed = True

sketch15 = body.newObject("Sketcher::SketchObject", "Sketch014")
sketch15.AttachmentSupport = (doc.getObject("XZ_Plane"), [""])
sketch15.MapMode = "FlatFace"
sketch15.addGeometry(Part.Circle(V(15, 32.5, 0), V(0, 0, 1), 1), False)
sketch15.addConstraint([
    Sketcher.Constraint("Diameter", 0, 2.0),
    Sketcher.Constraint("DistanceX", -1, 1, 0, 3, 15.0),
    Sketcher.Constraint("DistanceY", -1, 1, 0, 3, 32.5),
])
sketch15.setExpression("Constraints[0]", "Params.sketch15_diameter")
pocket12 = body.newObject("PartDesign::Pocket", "Pocket011")
pocket12.Profile = sketch15
pocket12.setExpression("Length", "Params.pocket12_length")

sketch16 = body.newObject("Sketcher::SketchObject", "Sketch015")
sketch16.AttachmentSupport = (doc.getObject("XZ_Plane"), [""])
sketch16.MapMode = "FlatFace"
sketch16.AttachmentOffset = App.Placement(V(0, 0, -65), App.Rotation())
sketch16.addGeometry([
    Part.LineSegment(V(43, 0, 0), V(43, 30, 0)),
    Part.LineSegment(V(43, 30, 0), V(80, 30, 0)),
    Part.LineSegment(V(80, 30, 0), V(80, 0, 0)),
    Part.LineSegment(V(80, 0, 0), V(43, 0, 0)),
], False)
sketch16.addConstraint([
    Sketcher.Constraint("Coincident", 0, 2, 1, 1),
    Sketcher.Constraint("Coincident", 1, 2, 2, 1),
    Sketcher.Constraint("Coincident", 2, 2, 3, 1),
    Sketcher.Constraint("Coincident", 3, 2, 0, 1),
    Sketcher.Constraint("Vertical", 0),
    Sketcher.Constraint("Horizontal", 1),
    Sketcher.Constraint("Vertical", 2),
    Sketcher.Constraint("Horizontal", 3),
    Sketcher.Constraint("PointOnObject", 2, 2, -1),
    Sketcher.Constraint("DistanceX", 1, 1, 1, 2, 37.0),
    Sketcher.Constraint("DistanceX", -1, 1, 0, 2, 43.0),
    Sketcher.Constraint("DistanceY", 0, 1, 0, 2, 30.09),
])
sketch16.setExpression("Constraints[9]", "Params.sketch16_width")
sketch16.setExpression("Constraints[11]", "Params.sketch16_height")
pocket13 = body.newObject("PartDesign::Pocket", "Pocket012")
pocket13.Profile = sketch16
pocket13.setExpression("Length", "Params.pocket13_length")
pocket13.Reversed = True

doc.recompute()
